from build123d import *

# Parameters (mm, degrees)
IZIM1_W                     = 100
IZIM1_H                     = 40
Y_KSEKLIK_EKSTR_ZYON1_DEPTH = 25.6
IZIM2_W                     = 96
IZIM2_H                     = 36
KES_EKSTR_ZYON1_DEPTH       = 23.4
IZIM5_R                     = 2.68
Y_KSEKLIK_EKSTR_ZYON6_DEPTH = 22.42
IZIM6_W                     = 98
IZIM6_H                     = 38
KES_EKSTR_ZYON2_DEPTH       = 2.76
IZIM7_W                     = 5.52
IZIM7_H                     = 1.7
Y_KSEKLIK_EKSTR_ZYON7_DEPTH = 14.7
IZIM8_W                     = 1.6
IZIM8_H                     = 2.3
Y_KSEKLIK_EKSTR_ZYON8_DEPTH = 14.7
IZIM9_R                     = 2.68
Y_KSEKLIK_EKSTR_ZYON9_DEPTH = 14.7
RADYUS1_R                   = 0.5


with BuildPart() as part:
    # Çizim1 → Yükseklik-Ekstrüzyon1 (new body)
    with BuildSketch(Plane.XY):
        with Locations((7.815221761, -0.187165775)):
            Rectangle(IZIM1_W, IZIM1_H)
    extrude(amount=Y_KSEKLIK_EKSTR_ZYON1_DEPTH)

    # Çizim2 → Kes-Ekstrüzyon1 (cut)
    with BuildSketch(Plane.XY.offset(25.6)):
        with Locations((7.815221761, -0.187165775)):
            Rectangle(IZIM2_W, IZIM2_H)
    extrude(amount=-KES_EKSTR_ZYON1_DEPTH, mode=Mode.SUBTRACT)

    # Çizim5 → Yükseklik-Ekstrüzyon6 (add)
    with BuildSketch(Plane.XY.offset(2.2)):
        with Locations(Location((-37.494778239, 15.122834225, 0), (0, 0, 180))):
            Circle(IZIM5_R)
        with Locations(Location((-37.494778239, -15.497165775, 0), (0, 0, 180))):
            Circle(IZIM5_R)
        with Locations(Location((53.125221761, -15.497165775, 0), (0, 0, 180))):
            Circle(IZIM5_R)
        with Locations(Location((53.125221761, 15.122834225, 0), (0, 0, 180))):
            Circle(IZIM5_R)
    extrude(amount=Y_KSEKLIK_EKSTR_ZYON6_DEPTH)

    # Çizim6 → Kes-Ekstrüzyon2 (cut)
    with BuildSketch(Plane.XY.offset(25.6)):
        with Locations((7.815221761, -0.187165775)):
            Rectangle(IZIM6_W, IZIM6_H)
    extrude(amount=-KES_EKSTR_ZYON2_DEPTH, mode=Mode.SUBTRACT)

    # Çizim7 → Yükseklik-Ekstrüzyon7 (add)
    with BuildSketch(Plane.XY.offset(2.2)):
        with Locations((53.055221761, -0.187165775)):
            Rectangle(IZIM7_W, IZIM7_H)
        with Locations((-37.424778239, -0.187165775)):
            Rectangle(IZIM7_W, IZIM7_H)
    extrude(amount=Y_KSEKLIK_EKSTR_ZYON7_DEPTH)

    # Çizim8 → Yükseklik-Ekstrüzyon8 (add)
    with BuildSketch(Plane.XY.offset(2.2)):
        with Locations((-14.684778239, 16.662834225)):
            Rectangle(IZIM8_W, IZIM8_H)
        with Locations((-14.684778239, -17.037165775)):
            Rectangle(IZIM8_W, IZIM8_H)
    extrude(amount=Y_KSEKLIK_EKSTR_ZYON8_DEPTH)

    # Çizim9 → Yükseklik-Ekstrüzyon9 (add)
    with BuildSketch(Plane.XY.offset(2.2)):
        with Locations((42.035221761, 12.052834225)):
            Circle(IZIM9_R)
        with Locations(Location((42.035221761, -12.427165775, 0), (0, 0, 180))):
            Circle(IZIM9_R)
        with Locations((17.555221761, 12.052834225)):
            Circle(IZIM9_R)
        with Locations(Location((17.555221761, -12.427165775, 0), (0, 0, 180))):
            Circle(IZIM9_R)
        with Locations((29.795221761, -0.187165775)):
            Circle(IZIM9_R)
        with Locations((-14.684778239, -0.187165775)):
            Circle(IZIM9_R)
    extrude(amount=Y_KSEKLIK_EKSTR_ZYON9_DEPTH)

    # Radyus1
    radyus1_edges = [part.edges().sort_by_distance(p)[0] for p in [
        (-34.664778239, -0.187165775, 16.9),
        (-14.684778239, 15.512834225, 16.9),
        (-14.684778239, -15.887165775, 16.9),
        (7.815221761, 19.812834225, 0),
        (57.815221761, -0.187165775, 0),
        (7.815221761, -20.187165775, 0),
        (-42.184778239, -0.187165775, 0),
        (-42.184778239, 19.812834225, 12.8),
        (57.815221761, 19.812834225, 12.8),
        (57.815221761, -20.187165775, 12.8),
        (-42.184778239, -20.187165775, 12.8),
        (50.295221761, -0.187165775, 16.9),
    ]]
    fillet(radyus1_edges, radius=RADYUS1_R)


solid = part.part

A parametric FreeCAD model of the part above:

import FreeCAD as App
import Part
import Sketcher

V = App.Vector


def edges_at(feature, points):
    """Names of the edges that pass closest to the given points."""
    edges = feature.Shape.Edges
    near = lambda p: min(range(len(edges)), key=lambda i: edges[i].distToShape(Part.Vertex(*p))[0])
    return sorted({f"Edge{near(p) + 1}" for p in points})


def add_polygon(sketch, points):
    """Adds a closed chain of lines whose ends are joined by coincident constraints."""
    first, n = sketch.GeometryCount, len(points)
    for a, b in zip(points, points[1:] + points[:1]):
        sketch.addGeometry(Part.LineSegment(App.Vector(*a, 0), App.Vector(*b, 0)), False)
    for i in range(n):
        sketch.addConstraint(Sketcher.Constraint("Coincident", first + i, 2, first + (i + 1) % n, 1))

doc = App.newDocument("Part")
body = doc.addObject("PartDesign::Body", "Body")

# Sketch on XY plane
sketch1 = body.newObject("Sketcher::SketchObject", "Sketch")
sketch1.AttachmentSupport = (doc.getObject("XY_Plane"), [""])
sketch1.MapMode = "FlatFace"
add_polygon(sketch1, [(-42, 20), (-42, -20), (58, -20), (58, 20)])  # lines 0-3
sketch1.addConstraint(Sketcher.Constraint("Vertical", 0))
sketch1.addConstraint(Sketcher.Constraint("Horizontal", 1))
sketch1.addConstraint(Sketcher.Constraint("Vertical", 2))
sketch1.addConstraint(Sketcher.Constraint("Horizontal", 3))
sketch1.addConstraint(Sketcher.Constraint("DistanceX", 1, 1, 1, 2, 100.0))
sketch1.addConstraint(Sketcher.Constraint("DistanceY", 0, 2, 0, 1, 40.0))
sketch1.addConstraint(Sketcher.Constraint("DistanceX", 0, 2, -1, 1, 42.184778))
sketch1.addConstraint(Sketcher.Constraint("DistanceY", 0, 2, -1, 1, 20.187166))
pad1 = body.newObject("PartDesign::Pad", "Pad")
pad1.Profile = sketch1
pad1.Length = 25.6

# Sketch on XY plane
sketch2 = body.newObject("Sketcher::SketchObject", "Sketch001")
sketch2.AttachmentSupport = (doc.getObject("XY_Plane"), [""])
sketch2.MapMode = "FlatFace"
sketch2.AttachmentOffset = App.Placement(V(0, 0, 25.6), App.Rotation())
add_polygon(sketch2, [(-40, 18), (-40, -18), (56, -18), (56, 18)])  # lines 0-3
sketch2.addConstraint(Sketcher.Constraint("Vertical", 0))
sketch2.addConstraint(Sketcher.Constraint("Horizontal", 1))
sketch2.addConstraint(Sketcher.Constraint("Vertical", 2))
sketch2.addConstraint(Sketcher.Constraint("Horizontal", 3))
sketch2.addConstraint(Sketcher.Constraint("DistanceX", 1, 1, 1, 2, 96.0))
sketch2.addConstraint(Sketcher.Constraint("DistanceY", 0, 2, 0, 1, 36.0))
sketch2.addConstraint(Sketcher.Constraint("DistanceX", 0, 2, -1, 1, 40.184778))
sketch2.addConstraint(Sketcher.Constraint("DistanceY", 0, 2, -1, 1, 18.187166))
pocket1 = body.newObject("PartDesign::Pocket", "Pocket")
pocket1.Profile = sketch2
pocket1.Length = 23.4

# Sketch on XY plane
sketch3 = body.newObject("Sketcher::SketchObject", "Sketch002")
sketch3.AttachmentSupport = (doc.getObject("XY_Plane"), [""])
sketch3.MapMode = "FlatFace"
sketch3.AttachmentOffset = App.Placement(V(0, 0, 2.2), App.Rotation())
sketch3.addGeometry(Part.Circle(V(-37.5, 15.1, 0), V(0, 0, 1), 2.7), False)
sketch3.addGeometry(Part.Circle(V(-37.5, -15.5, 0), V(0, 0, 1), 2.7), False)
sketch3.addGeometry(Part.Circle(V(53.1, -15.5, 0), V(0, 0, 1), 2.7), False)
sketch3.addGeometry(Part.Circle(V(53.1, 15.1, 0), V(0, 0, 1), 2.7), False)
sketch3.addConstraint(Sketcher.Constraint("Equal", 0, 1))
sketch3.addConstraint(Sketcher.Constraint("Equal", 1, 2))
sketch3.addConstraint(Sketcher.Constraint("Equal", 2, 3))
sketch3.addConstraint(Sketcher.Constraint("Horizontal", 1, 3, 2, 3))
sketch3.addConstraint(Sketcher.Constraint("Horizontal", 0, 3, 3, 3))
sketch3.addConstraint(Sketcher.Constraint("Vertical", 0, 3, 1, 3))
sketch3.addConstraint(Sketcher.Constraint("Vertical", 2, 3, 3, 3))
sketch3.addConstraint(Sketcher.Constraint("Diameter", 0, 5.36))
sketch3.addConstraint(Sketcher.Constraint("DistanceY", 1, 3, 0, 3, 30.62))
sketch3.addConstraint(Sketcher.Constraint("DistanceX", 1, 3, 2, 3, 90.62))
sketch3.addConstraint(Sketcher.Constraint("DistanceX", 0, 3, -1, 1, 37.494778))
sketch3.addConstraint(Sketcher.Constraint("DistanceY", -1, 1, 0, 3, 15.122834))
pad2 = body.newObject("PartDesign::Pad", "Pad001")
pad2.Profile = sketch3
pad2.Length = 22.42

# Sketch on XY plane
sketch4 = body.newObject("Sketcher::SketchObject", "Sketch003")
sketch4.AttachmentSupport = (doc.getObject("XY_Plane"), [""])
sketch4.MapMode = "FlatFace"
sketch4.AttachmentOffset = App.Placement(V(0, 0, 25.6), App.Rotation())
add_polygon(sketch4, [(-41, 19), (-41, -19), (57, -19), (57, 19)])  # lines 0-3
sketch4.addConstraint(Sketcher.Constraint("Vertical", 0))
sketch4.addConstraint(Sketcher.Constraint("Horizontal", 1))
sketch4.addConstraint(Sketcher.Constraint("Vertical", 2))
sketch4.addConstraint(Sketcher.Constraint("Horizontal", 3))
sketch4.addConstraint(Sketcher.Constraint("DistanceX", 1, 1, 1, 2, 98.0))
sketch4.addConstraint(Sketcher.Constraint("DistanceY", 0, 2, 0, 1, 38.0))
sketch4.addConstraint(Sketcher.Constraint("DistanceX", 0, 2, -1, 1, 41.184778))
sketch4.addConstraint(Sketcher.Constraint("DistanceY", 0, 2, -1, 1, 19.187166))
pocket2 = body.newObject("PartDesign::Pocket", "Pocket001")
pocket2.Profile = sketch4
pocket2.Length = 2.76

# Sketch on XY plane
sketch5 = body.newObject("Sketcher::SketchObject", "Sketch004")
sketch5.AttachmentSupport = (doc.getObject("XY_Plane"), [""])
sketch5.MapMode = "FlatFace"
sketch5.AttachmentOffset = App.Placement(V(0, 0, 2.2), App.Rotation())
add_polygon(sketch5, [(50.3, 0.7), (50.3, -1), (55.8, -1), (55.8, 0.7)])  # lines 0-3
add_polygon(sketch5, [(-40.2, 0.7), (-40.2, -1), (-34.7, -1), (-34.7, 0.7)])  # lines 4-7
sketch5.addConstraint(Sketcher.Constraint("Vertical", 0))
sketch5.addConstraint(Sketcher.Constraint("Horizontal", 1))
sketch5.addConstraint(Sketcher.Constraint("Vertical", 2))
sketch5.addConstraint(Sketcher.Constraint("Horizontal", 3))
sketch5.addConstraint(Sketcher.Constraint("Vertical", 4))
sketch5.addConstraint(Sketcher.Constraint("Horizontal", 5))
sketch5.addConstraint(Sketcher.Constraint("Vertical", 6))
sketch5.addConstraint(Sketcher.Constraint("Horizontal", 7))
sketch5.addConstraint(Sketcher.Constraint("Horizontal", 1, 2, 4, 2))
sketch5.addConstraint(Sketcher.Constraint("Horizontal", 3, 2, 6, 2))
sketch5.addConstraint(Sketcher.Constraint("Equal", 3, 5))
sketch5.addConstraint(Sketcher.Constraint("DistanceY", 0, 2, 0, 1, 1.7))
sketch5.addConstraint(Sketcher.Constraint("DistanceX", 4, 2, 1, 2, 96.0))
sketch5.addConstraint(Sketcher.Constraint("DistanceX", 1, 1, 1, 2, 5.52))
sketch5.addConstraint(Sketcher.Constraint("DistanceX", -1, 1, 0, 2, 50.295222))
sketch5.addConstraint(Sketcher.Constraint("DistanceY", 0, 2, -1, 1, 1.037166))
pad3 = body.newObject("PartDesign::Pad", "Pad002")
pad3.Profile = sketch5
pad3.Length = 14.7

# Sketch on XY plane
sketch6 = body.newObject("Sketcher::SketchObject", "Sketch005")
sketch6.AttachmentSupport = (doc.getObject("XY_Plane"), [""])
sketch6.MapMode = "FlatFace"
sketch6.AttachmentOffset = App.Placement(V(0, 0, 2.2), App.Rotation())
add_polygon(sketch6, [(-15.5, 17.8), (-15.5, 15.5), (-13.9, 15.5), (-13.9, 17.8)])  # lines 0-3
add_polygon(sketch6, [(-15.5, -15.9), (-15.5, -18.2), (-13.9, -18.2), (-13.9, -15.9)])  # lines 4-7
sketch6.addConstraint(Sketcher.Constraint("Vertical", 0))
sketch6.addConstraint(Sketcher.Constraint("Horizontal", 1))
sketch6.addConstraint(Sketcher.Constraint("Vertical", 2))
sketch6.addConstraint(Sketcher.Constraint("Horizontal", 3))
sketch6.addConstraint(Sketcher.Constraint("Vertical", 4))
sketch6.addConstraint(Sketcher.Constraint("Horizontal", 5))
sketch6.addConstraint(Sketcher.Constraint("Vertical", 6))
sketch6.addConstraint(Sketcher.Constraint("Horizontal", 7))
sketch6.addConstraint(Sketcher.Constraint("Vertical", 3, 2, 4, 2))
sketch6.addConstraint(Sketcher.Constraint("Vertical", 2, 2, 5, 2))
sketch6.addConstraint(Sketcher.Constraint("Equal", 2, 4))
sketch6.addConstraint(Sketcher.Constraint("DistanceX", 1, 1, 1, 2, 1.6))
sketch6.addConstraint(Sketcher.Constraint("DistanceY", 0, 2, 0, 1, 2.3))
sketch6.addConstraint(Sketcher.Constraint("DistanceY", 4, 2, 3, 2, 36.0))
sketch6.addConstraint(Sketcher.Constraint("DistanceX", 0, 2, -1, 1, 15.484778))
sketch6.addConstraint(Sketcher.Constraint("DistanceY", -1, 1, 0, 2, 15.512834))
pad4 = body.newObject("PartDesign::Pad", "Pad003")
pad4.Profile = sketch6
pad4.Length = 14.7

# Sketch on XY plane
sketch7 = body.newObject("Sketcher::SketchObject", "Sketch006")
sketch7.AttachmentSupport = (doc.getObject("XY_Plane"), [""])
sketch7.MapMode = "FlatFace"
sketch7.AttachmentOffset = App.Placement(V(0, 0, 2.2), App.Rotation())
sketch7.addGeometry(Part.Circle(V(42, 12.1, 0), V(0, 0, 1), 2.7), False)
sketch7.addGeometry(Part.Circle(V(42, -12.4, 0), V(0, 0, 1), 2.7), False)
sketch7.addGeometry(Part.Circle(V(17.6, 12.1, 0), V(0, 0, 1), 2.7), False)
sketch7.addGeometry(Part.Circle(V(17.6, -12.4, 0), V(0, 0, 1), 2.7), False)
sketch7.addGeometry(Part.Circle(V(29.8, -0.2, 0), V(0, 0, 1), 2.7), False)
sketch7.addGeometry(Part.Circle(V(-14.7, -0.2, 0), V(0, 0, 1), 2.7), False)
sketch7.addConstraint(Sketcher.Constraint("Equal", 0, 1))
sketch7.addConstraint(Sketcher.Constraint("Equal", 1, 2))
sketch7.addConstraint(Sketcher.Constraint("Equal", 2, 3))
sketch7.addConstraint(Sketcher.Constraint("Equal", 3, 4))
sketch7.addConstraint(Sketcher.Constraint("Equal", 4, 5))
sketch7.addConstraint(Sketcher.Constraint("Horizontal", 0, 3, 2, 3))
sketch7.addConstraint(Sketcher.Constraint("Horizontal", 1, 3, 3, 3))
sketch7.addConstraint(Sketcher.Constraint("Horizontal", 4, 3, 5, 3))
sketch7.addConstraint(Sketcher.Constraint("Vertical", 0, 3, 1, 3))
sketch7.addConstraint(Sketcher.Constraint("Vertical", 2, 3, 3, 3))
sketch7.addConstraint(Sketcher.Constraint("Diameter", 0, 5.36))
sketch7.addConstraint(Sketcher.Constraint("DistanceY", 1, 3, 0, 3, 24.48))
sketch7.addConstraint(Sketcher.Constraint("DistanceX", 2, 3, 0, 3, 24.48))
sketch7.addConstraint(Sketcher.Constraint("DistanceX", 4, 3, 0, 3, 12.24))
sketch7.addConstraint(Sketcher.Constraint("DistanceY", 4, 3, 0, 3, 12.24))
sketch7.addConstraint(Sketcher.Constraint("DistanceX", 5, 3, 2, 3, 32.24))
sketch7.addConstraint(Sketcher.Constraint("DistanceX", -1, 1, 0, 3, 42.035222))
sketch7.addConstraint(Sketcher.Constraint("DistanceY", -1, 1, 0, 3, 12.052834))
pad5 = body.newObject("PartDesign::Pad", "Pad004")
pad5.Profile = sketch7
pad5.Length = 14.7
doc.recompute()

fillet = body.newObject("PartDesign::Fillet", "Fillet")
fillet.Base = (pad5, edges_at(pad5, [
    (-34.665, -0.187, 16.9),
    (-14.685, 15.513, 16.9),
    (-14.685, -15.887, 16.9),
    (7.815, 19.813, 0),
    (57.815, -0.187, 0),
    (7.815, -20.187, 0),
    (-42.185, -0.187, 0),
    (-42.185, 19.813, 12.8),
    (57.815, 19.813, 12.8),
    (57.815, -20.187, 12.8),
    (-42.185, -20.187, 12.8),
    (50.295, -0.187, 16.9),
]))
fillet.Radius = 0.5

doc.recompute()
